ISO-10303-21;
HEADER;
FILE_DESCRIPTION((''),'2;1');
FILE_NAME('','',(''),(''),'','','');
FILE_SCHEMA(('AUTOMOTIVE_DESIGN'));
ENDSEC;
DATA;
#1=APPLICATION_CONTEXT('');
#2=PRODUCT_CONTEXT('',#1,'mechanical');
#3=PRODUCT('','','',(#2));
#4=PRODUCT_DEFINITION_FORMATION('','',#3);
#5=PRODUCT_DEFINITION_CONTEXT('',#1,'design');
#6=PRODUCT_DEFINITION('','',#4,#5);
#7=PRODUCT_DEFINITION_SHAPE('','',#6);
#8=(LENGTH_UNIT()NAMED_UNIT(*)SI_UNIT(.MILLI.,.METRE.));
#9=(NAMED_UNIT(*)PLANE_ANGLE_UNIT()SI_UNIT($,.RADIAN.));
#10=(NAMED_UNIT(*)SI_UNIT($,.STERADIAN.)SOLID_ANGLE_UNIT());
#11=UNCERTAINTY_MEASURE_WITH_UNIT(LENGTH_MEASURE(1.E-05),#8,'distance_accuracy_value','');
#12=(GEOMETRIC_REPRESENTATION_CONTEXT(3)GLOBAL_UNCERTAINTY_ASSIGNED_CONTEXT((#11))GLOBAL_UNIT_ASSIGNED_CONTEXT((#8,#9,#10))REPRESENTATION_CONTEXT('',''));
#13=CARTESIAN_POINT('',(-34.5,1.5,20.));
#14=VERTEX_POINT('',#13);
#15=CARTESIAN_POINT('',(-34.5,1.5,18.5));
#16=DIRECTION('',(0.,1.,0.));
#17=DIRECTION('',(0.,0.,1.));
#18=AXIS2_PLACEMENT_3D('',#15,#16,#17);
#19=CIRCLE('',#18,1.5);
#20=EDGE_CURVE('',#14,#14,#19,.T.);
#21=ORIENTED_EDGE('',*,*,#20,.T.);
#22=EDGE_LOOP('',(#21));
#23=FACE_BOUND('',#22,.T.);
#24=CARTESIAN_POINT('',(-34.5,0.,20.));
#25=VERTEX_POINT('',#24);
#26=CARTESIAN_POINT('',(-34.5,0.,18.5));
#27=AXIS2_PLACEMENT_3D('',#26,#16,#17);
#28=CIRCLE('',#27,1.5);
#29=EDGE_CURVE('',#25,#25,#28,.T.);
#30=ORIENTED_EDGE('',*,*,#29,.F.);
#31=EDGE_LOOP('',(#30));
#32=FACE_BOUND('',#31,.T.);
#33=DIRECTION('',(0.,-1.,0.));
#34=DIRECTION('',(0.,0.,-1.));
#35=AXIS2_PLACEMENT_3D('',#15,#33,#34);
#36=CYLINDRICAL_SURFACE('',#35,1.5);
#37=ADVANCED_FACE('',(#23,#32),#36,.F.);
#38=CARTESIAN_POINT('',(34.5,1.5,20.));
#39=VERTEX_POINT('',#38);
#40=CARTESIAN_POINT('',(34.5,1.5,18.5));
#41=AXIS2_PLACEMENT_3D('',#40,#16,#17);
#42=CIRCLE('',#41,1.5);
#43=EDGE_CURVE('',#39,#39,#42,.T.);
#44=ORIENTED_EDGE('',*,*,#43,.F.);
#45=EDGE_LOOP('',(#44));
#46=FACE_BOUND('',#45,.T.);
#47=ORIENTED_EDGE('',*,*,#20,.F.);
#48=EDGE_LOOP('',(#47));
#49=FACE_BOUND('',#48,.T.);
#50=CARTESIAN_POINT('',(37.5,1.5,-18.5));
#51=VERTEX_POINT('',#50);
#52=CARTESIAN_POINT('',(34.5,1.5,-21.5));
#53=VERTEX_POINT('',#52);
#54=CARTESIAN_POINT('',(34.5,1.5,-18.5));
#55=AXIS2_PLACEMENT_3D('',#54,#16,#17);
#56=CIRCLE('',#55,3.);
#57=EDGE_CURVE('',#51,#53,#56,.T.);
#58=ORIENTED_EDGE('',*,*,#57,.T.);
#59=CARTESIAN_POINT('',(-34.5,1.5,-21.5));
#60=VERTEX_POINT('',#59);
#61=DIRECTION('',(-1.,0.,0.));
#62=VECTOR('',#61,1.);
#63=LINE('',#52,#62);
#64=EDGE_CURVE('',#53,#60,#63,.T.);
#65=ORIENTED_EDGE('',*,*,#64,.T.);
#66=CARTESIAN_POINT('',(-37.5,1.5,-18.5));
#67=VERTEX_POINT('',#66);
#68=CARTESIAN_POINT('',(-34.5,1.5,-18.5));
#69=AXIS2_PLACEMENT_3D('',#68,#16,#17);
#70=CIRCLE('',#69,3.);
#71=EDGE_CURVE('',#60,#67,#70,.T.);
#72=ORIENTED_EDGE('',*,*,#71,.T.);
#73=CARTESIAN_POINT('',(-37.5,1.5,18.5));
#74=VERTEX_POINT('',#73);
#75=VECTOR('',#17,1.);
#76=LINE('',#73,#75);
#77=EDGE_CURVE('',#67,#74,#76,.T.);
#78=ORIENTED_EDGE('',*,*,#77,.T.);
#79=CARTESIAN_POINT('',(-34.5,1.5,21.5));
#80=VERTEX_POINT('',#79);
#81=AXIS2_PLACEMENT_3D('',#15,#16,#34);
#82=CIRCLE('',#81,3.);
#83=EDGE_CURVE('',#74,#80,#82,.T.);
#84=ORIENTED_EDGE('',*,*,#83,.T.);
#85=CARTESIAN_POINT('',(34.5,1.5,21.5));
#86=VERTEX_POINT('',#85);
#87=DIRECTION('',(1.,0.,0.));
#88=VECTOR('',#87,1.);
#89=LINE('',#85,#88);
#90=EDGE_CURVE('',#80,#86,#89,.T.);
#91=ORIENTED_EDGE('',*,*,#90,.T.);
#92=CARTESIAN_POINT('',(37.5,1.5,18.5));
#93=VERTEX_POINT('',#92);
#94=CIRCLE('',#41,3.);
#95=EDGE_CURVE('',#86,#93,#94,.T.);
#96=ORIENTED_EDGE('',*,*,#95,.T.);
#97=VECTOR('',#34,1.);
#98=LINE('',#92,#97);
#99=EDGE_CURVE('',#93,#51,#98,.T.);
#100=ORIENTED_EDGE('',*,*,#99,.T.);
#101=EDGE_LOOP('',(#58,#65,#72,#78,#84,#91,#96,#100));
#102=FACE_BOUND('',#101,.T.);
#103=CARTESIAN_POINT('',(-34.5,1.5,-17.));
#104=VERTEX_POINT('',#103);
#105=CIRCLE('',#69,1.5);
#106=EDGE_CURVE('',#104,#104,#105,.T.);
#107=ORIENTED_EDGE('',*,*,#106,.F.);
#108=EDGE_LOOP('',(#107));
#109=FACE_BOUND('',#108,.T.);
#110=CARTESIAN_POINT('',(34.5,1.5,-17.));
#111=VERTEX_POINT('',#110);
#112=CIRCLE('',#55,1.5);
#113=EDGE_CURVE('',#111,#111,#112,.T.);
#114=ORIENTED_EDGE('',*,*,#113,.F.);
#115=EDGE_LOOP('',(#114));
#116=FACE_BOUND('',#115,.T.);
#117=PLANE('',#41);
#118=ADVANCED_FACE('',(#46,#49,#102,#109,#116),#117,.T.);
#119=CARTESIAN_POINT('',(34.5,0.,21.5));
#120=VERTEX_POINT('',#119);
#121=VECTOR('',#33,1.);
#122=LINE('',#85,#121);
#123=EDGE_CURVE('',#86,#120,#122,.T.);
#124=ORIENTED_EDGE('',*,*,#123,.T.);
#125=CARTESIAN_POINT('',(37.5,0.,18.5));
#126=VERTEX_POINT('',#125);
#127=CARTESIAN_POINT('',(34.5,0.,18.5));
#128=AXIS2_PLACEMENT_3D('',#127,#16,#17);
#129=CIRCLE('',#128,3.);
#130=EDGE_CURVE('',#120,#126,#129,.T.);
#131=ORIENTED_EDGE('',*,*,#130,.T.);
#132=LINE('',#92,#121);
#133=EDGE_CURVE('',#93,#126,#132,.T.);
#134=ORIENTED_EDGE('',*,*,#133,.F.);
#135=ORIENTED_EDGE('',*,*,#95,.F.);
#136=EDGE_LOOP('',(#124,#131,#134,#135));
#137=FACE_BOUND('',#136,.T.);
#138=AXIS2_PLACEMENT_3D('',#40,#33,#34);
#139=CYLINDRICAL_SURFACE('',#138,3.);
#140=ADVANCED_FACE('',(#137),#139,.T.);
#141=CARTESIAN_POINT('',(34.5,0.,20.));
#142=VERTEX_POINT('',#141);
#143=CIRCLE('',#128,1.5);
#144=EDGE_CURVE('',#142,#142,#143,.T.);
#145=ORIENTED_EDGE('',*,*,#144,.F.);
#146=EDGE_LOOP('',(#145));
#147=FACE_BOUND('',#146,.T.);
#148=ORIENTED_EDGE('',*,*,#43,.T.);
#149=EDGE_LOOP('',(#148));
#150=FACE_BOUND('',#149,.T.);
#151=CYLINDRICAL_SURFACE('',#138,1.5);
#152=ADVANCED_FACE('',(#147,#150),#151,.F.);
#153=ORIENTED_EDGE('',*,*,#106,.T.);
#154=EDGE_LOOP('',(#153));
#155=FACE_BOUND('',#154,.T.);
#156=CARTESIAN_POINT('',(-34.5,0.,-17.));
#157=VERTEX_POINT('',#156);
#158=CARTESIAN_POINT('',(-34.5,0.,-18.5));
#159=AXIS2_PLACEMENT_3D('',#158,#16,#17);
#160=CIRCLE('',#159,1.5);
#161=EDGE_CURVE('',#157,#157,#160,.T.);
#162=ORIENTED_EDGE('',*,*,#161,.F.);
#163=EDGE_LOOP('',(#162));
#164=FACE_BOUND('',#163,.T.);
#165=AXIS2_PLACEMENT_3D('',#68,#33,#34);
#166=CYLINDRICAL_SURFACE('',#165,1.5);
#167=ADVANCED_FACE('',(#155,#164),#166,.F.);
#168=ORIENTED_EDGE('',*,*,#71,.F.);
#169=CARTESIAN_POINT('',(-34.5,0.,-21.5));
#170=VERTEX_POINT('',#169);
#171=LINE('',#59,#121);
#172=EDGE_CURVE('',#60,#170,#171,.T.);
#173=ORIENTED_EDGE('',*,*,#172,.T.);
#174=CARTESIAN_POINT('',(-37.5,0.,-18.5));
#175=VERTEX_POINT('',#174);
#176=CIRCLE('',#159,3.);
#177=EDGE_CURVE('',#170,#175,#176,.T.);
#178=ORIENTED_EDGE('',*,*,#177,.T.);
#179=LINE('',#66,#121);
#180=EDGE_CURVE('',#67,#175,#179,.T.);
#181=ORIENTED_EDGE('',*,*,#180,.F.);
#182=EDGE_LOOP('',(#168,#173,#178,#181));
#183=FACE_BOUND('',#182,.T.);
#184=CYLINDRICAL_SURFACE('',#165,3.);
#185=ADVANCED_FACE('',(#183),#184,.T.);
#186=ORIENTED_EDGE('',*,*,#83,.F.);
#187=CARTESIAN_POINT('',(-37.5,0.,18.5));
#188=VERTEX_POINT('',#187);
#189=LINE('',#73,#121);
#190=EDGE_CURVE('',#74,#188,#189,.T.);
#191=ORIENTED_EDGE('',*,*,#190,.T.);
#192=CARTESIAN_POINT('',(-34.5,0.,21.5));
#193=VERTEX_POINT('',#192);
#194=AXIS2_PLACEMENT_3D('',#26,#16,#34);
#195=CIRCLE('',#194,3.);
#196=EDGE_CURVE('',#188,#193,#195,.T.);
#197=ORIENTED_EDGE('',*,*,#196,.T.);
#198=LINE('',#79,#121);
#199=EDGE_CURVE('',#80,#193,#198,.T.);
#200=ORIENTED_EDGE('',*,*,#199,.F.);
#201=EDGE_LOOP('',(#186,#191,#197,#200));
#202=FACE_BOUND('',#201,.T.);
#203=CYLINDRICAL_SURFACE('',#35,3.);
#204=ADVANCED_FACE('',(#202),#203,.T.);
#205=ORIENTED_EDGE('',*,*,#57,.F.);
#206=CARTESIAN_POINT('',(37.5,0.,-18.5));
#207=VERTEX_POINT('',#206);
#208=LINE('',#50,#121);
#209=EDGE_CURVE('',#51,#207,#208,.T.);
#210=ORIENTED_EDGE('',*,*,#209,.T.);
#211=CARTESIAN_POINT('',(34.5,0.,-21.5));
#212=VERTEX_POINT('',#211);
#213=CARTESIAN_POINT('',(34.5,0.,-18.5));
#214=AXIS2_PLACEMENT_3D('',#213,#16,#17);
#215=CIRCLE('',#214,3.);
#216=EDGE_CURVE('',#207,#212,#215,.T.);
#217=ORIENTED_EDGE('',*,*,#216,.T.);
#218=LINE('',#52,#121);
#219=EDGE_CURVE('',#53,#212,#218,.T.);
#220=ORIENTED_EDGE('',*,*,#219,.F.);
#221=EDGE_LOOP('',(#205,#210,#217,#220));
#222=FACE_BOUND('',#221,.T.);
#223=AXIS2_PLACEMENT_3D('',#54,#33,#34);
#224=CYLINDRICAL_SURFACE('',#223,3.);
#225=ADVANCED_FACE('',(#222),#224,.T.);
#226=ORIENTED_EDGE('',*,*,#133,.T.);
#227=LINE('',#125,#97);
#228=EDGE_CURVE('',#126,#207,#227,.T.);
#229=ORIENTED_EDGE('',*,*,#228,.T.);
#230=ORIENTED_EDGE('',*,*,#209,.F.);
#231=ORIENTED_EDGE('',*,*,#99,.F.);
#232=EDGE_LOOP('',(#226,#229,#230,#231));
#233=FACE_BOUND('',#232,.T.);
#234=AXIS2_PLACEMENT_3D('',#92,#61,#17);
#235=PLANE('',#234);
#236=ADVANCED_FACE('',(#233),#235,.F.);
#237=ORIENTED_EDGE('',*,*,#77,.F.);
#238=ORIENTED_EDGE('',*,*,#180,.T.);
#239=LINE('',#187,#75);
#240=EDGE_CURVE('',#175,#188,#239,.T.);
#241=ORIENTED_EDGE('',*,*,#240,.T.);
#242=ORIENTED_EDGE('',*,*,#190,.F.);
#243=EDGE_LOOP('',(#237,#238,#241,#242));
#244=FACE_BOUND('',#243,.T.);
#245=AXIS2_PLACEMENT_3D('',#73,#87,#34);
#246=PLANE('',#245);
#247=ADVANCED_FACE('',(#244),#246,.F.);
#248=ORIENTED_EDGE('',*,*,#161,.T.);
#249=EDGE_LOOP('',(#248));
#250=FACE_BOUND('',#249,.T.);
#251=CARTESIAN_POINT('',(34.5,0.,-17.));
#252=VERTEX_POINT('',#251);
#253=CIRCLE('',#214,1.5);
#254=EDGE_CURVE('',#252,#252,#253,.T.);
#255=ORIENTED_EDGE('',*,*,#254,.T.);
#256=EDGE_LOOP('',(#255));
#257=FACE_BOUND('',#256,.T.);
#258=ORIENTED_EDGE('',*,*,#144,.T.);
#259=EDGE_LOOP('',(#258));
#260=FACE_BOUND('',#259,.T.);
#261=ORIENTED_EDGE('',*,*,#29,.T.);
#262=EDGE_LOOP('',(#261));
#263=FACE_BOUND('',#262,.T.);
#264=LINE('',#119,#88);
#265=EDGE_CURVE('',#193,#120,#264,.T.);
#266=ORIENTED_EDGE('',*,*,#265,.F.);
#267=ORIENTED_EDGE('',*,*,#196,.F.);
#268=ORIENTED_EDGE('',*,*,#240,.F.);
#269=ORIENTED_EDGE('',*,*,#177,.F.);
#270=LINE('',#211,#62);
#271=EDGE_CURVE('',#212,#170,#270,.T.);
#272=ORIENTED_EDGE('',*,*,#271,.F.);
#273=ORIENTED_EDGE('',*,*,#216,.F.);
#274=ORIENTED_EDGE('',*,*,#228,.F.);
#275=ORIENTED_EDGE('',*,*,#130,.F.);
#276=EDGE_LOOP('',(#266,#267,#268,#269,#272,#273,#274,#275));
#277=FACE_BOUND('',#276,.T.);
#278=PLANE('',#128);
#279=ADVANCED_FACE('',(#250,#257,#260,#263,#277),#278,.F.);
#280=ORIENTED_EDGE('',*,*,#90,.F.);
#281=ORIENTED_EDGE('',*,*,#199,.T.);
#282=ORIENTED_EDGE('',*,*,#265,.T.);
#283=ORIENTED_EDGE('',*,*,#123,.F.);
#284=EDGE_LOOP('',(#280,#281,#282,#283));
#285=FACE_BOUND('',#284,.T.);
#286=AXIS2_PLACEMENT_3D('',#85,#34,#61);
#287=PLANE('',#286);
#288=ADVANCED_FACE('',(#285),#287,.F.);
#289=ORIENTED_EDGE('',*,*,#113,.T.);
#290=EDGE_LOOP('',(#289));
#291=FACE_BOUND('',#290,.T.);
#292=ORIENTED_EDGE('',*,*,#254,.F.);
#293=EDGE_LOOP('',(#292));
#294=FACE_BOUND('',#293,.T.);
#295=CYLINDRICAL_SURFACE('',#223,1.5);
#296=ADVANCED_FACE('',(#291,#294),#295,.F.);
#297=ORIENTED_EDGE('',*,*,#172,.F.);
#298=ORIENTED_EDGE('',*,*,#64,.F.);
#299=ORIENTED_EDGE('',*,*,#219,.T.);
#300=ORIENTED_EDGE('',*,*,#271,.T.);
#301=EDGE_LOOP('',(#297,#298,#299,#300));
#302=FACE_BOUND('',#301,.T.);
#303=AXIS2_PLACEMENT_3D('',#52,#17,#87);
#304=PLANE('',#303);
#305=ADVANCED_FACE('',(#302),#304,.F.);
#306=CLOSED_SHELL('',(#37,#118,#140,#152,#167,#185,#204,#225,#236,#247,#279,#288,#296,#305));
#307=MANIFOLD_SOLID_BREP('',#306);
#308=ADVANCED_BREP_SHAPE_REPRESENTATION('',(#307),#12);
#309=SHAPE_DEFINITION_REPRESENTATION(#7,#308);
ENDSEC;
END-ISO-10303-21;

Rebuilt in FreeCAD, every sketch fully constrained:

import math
import FreeCAD as App
import Part
import Sketcher

V = App.Vector

doc = App.newDocument("Part")
params = doc.addObject("Spreadsheet::Sheet", "Params")
for row, (alias, value) in enumerate([
    ("sketch1_diameter", "3 mm"),
    ("sketch1_radius", "3 mm"),
    ("sketch1_width", "69 mm"),
    ("sketch1_height", "37 mm"),
    ("pad1_length", "1.5 mm"),
], start=1):
    params.set(f"A{row}", alias)
    params.set(f"B{row}", "=" + value)
    params.setAlias(f"B{row}", alias)

body = doc.addObject("PartDesign::Body", "Body")

# Sketch on XZ plane
sketch1 = body.newObject("Sketcher::SketchObject", "Sketch")
sketch1.AttachmentSupport = (doc.getObject("XZ_Plane"), [""])
sketch1.MapMode = "FlatFace"
sketch1.addGeometry(Part.LineSegment(V(-34.5, 21.5, 0), V(34.5, 21.5, 0)), False)
sketch1.addGeometry(Part.ArcOfCircle(Part.Circle(V(34.5, 18.5, 0), V(0, 0, 1), 3), math.radians(0), math.radians(90)), False)
sketch1.addGeometry(Part.LineSegment(V(37.5, 18.5, 0), V(37.5, -18.5, 0)), False)
sketch1.addGeometry(Part.ArcOfCircle(Part.Circle(V(34.5, -18.5, 0), V(0, 0, 1), 3), math.radians(-90), math.radians(0)), False)
sketch1.addGeometry(Part.LineSegment(V(34.5, -21.5, 0), V(-34.5, -21.5, 0)), False)
sketch1.addGeometry(Part.ArcOfCircle(Part.Circle(V(-34.5, -18.5, 0), V(0, 0, 1), 3), math.radians(180), math.radians(270)), False)
sketch1.addGeometry(Part.LineSegment(V(-37.5, -18.5, 0), V(-37.5, 18.5, 0)), False)
sketch1.addGeometry(Part.ArcOfCircle(Part.Circle(V(-34.5, 18.5, 0), V(0, 0, 1), 3), math.radians(90), math.radians(180)), False)
sketch1.addGeometry(Part.Circle(V(34.5, 18.5, 0), V(0, 0, 1), 1.5), False)
sketch1.addGeometry(Part.Circle(V(-34.5, 18.5, 0), V(0, 0, 1), 1.5), False)
sketch1.addGeometry(Part.Circle(V(34.5, -18.5, 0), V(0, 0, 1), 1.5), False)
sketch1.addGeometry(Part.Circle(V(-34.5, -18.5, 0), V(0, 0, 1), 1.5), False)
sketch1.addConstraint(Sketcher.Constraint("Tangent", 0, 2, 1, 2))
sketch1.addConstraint(Sketcher.Constraint("Tangent", 1, 1, 2, 1))
sketch1.addConstraint(Sketcher.Constraint("Tangent", 2, 2, 3, 2))
sketch1.addConstraint(Sketcher.Constraint("Tangent", 3, 1, 4, 1))
sketch1.addConstraint(Sketcher.Constraint("Tangent", 4, 2, 5, 2))
sketch1.addConstraint(Sketcher.Constraint("Tangent", 5, 1, 6, 1))
sketch1.addConstraint(Sketcher.Constraint("Tangent", 6, 2, 7, 2))
sketch1.addConstraint(Sketcher.Constraint("Tangent", 7, 1, 0, 1))
sketch1.addConstraint(Sketcher.Constraint("Horizontal", 0))
sketch1.addConstraint(Sketcher.Constraint("Vertical", 2))
sketch1.addConstraint(Sketcher.Constraint("Horizontal", 4))
sketch1.addConstraint(Sketcher.Constraint("Vertical", 6))
sketch1.addConstraint(Sketcher.Constraint("Coincident", 8, 3, 1, 3))
sketch1.addConstraint(Sketcher.Constraint("Coincident", 9, 3, 7, 3))
sketch1.addConstraint(Sketcher.Constraint("Coincident", 10, 3, 3, 3))
sketch1.addConstraint(Sketcher.Constraint("Coincident", 11, 3, 5, 3))
sketch1.addConstraint(Sketcher.Constraint("Equal", 1, 3))
sketch1.addConstraint(Sketcher.Constraint("Equal", 3, 5))
sketch1.addConstraint(Sketcher.Constraint("Equal", 5, 7))
sketch1.addConstraint(Sketcher.Constraint("Equal", 8, 9))
sketch1.addConstraint(Sketcher.Constraint("Equal", 9, 10))
sketch1.addConstraint(Sketcher.Constraint("Equal", 10, 11))
sketch1.addConstraint(Sketcher.Constraint("Symmetric", 1, 3, 5, 3, -1, 1))
sketch1.addConstraint(Sketcher.Constraint("Diameter", 8, 3.0))
sketch1.addConstraint(Sketcher.Constraint("Radius", 1, 3.0))
sketch1.addConstraint(Sketcher.Constraint("DistanceX", 0, 1, 0, 2, 69.0))
sketch1.addConstraint(Sketcher.Constraint("DistanceY", 2, 2, 2, 1, 37.0))
sketch1.setExpression("Constraints[23]", "Params.sketch1_diameter")
sketch1.setExpression("Constraints[24]", "Params.sketch1_radius")
sketch1.setExpression("Constraints[25]", "Params.sketch1_width")
sketch1.setExpression("Constraints[26]", "Params.sketch1_height")
pad1 = body.newObject("PartDesign::Pad", "Pad")
pad1.Profile = sketch1
pad1.setExpression("Length", "Params.pad1_length")
pad1.Reversed = True

doc.recompute()
